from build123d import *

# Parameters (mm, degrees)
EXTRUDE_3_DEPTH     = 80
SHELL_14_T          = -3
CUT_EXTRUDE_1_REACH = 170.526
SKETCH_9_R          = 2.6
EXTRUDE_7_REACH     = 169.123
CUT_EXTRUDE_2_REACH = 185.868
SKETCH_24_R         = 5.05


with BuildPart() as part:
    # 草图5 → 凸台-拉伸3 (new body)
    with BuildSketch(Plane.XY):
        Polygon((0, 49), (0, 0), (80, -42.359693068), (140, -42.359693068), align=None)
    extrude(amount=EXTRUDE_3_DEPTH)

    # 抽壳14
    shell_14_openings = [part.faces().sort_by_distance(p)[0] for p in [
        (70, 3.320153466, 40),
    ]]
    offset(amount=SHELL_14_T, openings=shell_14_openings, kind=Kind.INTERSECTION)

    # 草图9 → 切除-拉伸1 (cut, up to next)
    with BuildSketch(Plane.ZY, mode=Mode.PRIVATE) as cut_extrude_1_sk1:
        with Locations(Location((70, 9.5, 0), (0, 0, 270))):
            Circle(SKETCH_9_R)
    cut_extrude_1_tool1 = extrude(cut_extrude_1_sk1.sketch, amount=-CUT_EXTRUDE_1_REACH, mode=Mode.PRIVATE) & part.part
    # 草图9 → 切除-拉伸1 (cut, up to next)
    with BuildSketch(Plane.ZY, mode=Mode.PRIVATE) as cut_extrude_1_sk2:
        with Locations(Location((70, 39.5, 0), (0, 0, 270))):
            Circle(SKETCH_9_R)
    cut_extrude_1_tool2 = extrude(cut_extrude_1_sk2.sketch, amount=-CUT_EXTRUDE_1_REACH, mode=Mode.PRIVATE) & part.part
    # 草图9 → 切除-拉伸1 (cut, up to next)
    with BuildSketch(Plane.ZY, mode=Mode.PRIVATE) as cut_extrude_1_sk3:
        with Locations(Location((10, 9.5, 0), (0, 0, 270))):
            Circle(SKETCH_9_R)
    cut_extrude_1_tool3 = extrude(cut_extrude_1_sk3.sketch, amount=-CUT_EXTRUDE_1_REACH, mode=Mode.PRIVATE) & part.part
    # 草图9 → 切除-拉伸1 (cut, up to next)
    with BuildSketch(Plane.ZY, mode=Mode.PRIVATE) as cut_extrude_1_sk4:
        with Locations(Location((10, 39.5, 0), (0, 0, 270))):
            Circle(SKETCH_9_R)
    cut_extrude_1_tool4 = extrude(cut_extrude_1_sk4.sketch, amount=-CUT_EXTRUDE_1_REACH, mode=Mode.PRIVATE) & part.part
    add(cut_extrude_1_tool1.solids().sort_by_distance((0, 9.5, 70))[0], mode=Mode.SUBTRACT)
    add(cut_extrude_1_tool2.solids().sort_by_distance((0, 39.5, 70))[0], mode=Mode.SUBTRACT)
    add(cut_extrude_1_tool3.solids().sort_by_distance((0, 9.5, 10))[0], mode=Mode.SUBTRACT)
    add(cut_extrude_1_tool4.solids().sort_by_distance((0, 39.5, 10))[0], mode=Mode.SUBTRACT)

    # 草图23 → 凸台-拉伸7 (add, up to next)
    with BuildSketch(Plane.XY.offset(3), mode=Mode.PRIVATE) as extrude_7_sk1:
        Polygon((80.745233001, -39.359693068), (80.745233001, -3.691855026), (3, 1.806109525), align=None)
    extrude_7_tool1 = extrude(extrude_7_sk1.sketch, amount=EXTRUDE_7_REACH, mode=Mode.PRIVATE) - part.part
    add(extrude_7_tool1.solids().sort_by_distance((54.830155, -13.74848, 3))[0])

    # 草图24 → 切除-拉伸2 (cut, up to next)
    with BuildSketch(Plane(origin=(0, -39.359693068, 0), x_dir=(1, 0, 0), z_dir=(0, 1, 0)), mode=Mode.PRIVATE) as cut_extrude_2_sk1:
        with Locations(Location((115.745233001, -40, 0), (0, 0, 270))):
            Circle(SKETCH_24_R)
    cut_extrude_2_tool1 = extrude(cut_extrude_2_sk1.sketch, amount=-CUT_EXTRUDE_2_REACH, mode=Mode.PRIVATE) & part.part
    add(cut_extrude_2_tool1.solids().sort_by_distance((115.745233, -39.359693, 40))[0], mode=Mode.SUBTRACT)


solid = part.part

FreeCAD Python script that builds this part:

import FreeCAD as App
import Part
import Sketcher
Q = App.Units.Quantity


def faces_at(feature, points):
    """Names of the faces that lie closest to the given points."""
    faces = feature.Shape.Faces
    near = lambda p: min(range(len(faces)), key=lambda i: faces[i].distToShape(Part.Vertex(*p))[0])
    return sorted({f"Face{near(p) + 1}" for p in points})

doc = App.newDocument("Part")
body = doc.addObject("PartDesign::Body", "Body")

# Sketch on XY plane
sketch1 = doc.addObject("Sketcher::SketchObject", "Sketch")
body.addObject(sketch1)
sketch1.AttachmentSupport = (doc.XY_Plane, [""])
sketch1.MapMode = "FlatFace"
sketch1.addGeometry([
    Part.LineSegment(App.Vector(0, 49, 0), App.Vector(0, 0, 0)),
    Part.LineSegment(App.Vector(0, 0, 0), App.Vector(80, -42.359693, 0)),
    Part.LineSegment(App.Vector(80, -42.359693, 0), App.Vector(140, -42.359693, 0)),
    Part.LineSegment(App.Vector(140, -42.359693, 0), App.Vector(0, 49, 0)),
], False)
sketch1.addConstraint([
    Sketcher.Constraint("Coincident", 0, 2, 1, 1),
    Sketcher.Constraint("Coincident", 1, 2, 2, 1),
    Sketcher.Constraint("Coincident", 2, 2, 3, 1),
    Sketcher.Constraint("Coincident", 3, 2, 0, 1),
    Sketcher.Constraint("Vertical", 0),
    Sketcher.Constraint("Horizontal", 2),
    Sketcher.Constraint("Coincident", 0, 2, -1, 1),
    Sketcher.Constraint("DistanceX", 2, 1, 2, 2, Q("60 mm")),
    Sketcher.Constraint("DistanceY", 0, 2, 0, 1, Q("49 mm")),
    Sketcher.Constraint("DistanceX", -1, 1, 1, 2, Q("80 mm")),
    Sketcher.Constraint("Distance", 1, Q("90.522614 mm")),
])
pad1 = doc.addObject("PartDesign::Pad", "Pad")
body.addObject(pad1)
pad1.Profile = sketch1
pad1.Length = 80
doc.recompute()

thickness = doc.addObject("PartDesign::Thickness", "Thickness")
body.addObject(thickness)
thickness.Base = (pad1, faces_at(pad1, [(70, 3.32, 40)]))
thickness.Value = 3
thickness.Reversed = True
thickness.Join = "Intersection"

# Sketch on YZ plane
sketch2 = doc.addObject("Sketcher::SketchObject", "Sketch001")
body.addObject(sketch2)
sketch2.AttachmentSupport = (doc.YZ_Plane, [""])
sketch2.MapMode = "FlatFace"
sketch2.addGeometry(Part.Circle(App.Vector(9.5, 70, 0), App.Vector(0, 0, 1), 2.6), False)
sketch2.addConstraint([
    Sketcher.Constraint("Diameter", 0, Q("5.2 mm")),
    Sketcher.Constraint("DistanceY", -1, 1, 0, 3, Q("70 mm")),
    Sketcher.Constraint("DistanceX", -1, 1, 0, 3, Q("9.5 mm")),
])
pocket1 = doc.addObject("PartDesign::Pocket", "Pocket")
body.addObject(pocket1)
pocket1.Profile = sketch2
pocket1.Type = "UpToFirst"
pocket1.Reversed = True

# Sketch on YZ plane
sketch3 = doc.addObject("Sketcher::SketchObject", "Sketch002")
body.addObject(sketch3)
sketch3.AttachmentSupport = (doc.YZ_Plane, [""])
sketch3.MapMode = "FlatFace"
sketch3.addGeometry(Part.Circle(App.Vector(39.5, 70, 0), App.Vector(0, 0, 1), 2.6), False)
sketch3.addConstraint([
    Sketcher.Constraint("Diameter", 0, Q("5.2 mm")),
    Sketcher.Constraint("DistanceY", -1, 1, 0, 3, Q("70 mm")),
    Sketcher.Constraint("DistanceX", -1, 1, 0, 3, Q("39.5 mm")),
])
pocket2 = doc.addObject("PartDesign::Pocket", "Pocket001")
body.addObject(pocket2)
pocket2.Profile = sketch3
pocket2.Type = "UpToFirst"
pocket2.Reversed = True

# Sketch on YZ plane
sketch4 = doc.addObject("Sketcher::SketchObject", "Sketch003")
body.addObject(sketch4)
sketch4.AttachmentSupport = (doc.YZ_Plane, [""])
sketch4.MapMode = "FlatFace"
sketch4.addGeometry(Part.Circle(App.Vector(9.5, 10, 0), App.Vector(0, 0, 1), 2.6), False)
sketch4.addConstraint([
    Sketcher.Constraint("Diameter", 0, Q("5.2 mm")),
    Sketcher.Constraint("DistanceY", -1, 1, 0, 3, Q("10 mm")),
    Sketcher.Constraint("DistanceX", -1, 1, 0, 3, Q("9.5 mm")),
])
pocket3 = doc.addObject("PartDesign::Pocket", "Pocket002")
body.addObject(pocket3)
pocket3.Profile = sketch4
pocket3.Type = "UpToFirst"
pocket3.Reversed = True

# Sketch on YZ plane
sketch5 = doc.addObject("Sketcher::SketchObject", "Sketch004")
body.addObject(sketch5)
sketch5.AttachmentSupport = (doc.YZ_Plane, [""])
sketch5.MapMode = "FlatFace"
sketch5.addGeometry(Part.Circle(App.Vector(39.5, 10, 0), App.Vector(0, 0, 1), 2.6), False)
sketch5.addConstraint([
    Sketcher.Constraint("Diameter", 0, Q("5.2 mm")),
    Sketcher.Constraint("DistanceY", -1, 1, 0, 3, Q("10 mm")),
    Sketcher.Constraint("DistanceX", -1, 1, 0, 3, Q("39.5 mm")),
])
pocket4 = doc.addObject("PartDesign::Pocket", "Pocket003")
body.addObject(pocket4)
pocket4.Profile = sketch5
pocket4.Type = "UpToFirst"
pocket4.Reversed = True

# Sketch on XY plane
sketch6 = doc.addObject("Sketcher::SketchObject", "Sketch005")
body.addObject(sketch6)
sketch6.AttachmentSupport = (doc.XY_Plane, [""])
sketch6.MapMode = "FlatFace"
sketch6.AttachmentOffset = App.Placement(App.Vector(0, 0, 3), App.Rotation())
sketch6.addGeometry([
    Part.LineSegment(App.Vector(80.745233, -39.359693, 0), App.Vector(80.745233, -3.691855, 0)),
    Part.LineSegment(App.Vector(80.745233, -3.691855, 0), App.Vector(3, 1.80611, 0)),
    Part.LineSegment(App.Vector(3, 1.80611, 0), App.Vector(80.745233, -39.359693, 0)),
], False)
sketch6.addConstraint([
    Sketcher.Constraint("Coincident", 0, 2, 1, 1),
    Sketcher.Constraint("Coincident", 1, 2, 2, 1),
    Sketcher.Constraint("Coincident", 2, 2, 0, 1),
    Sketcher.Constraint("Vertical", 0),
    Sketcher.Constraint("DistanceX", -1, 1, 1, 2, Q("3 mm")),
    Sketcher.Constraint("DistanceY", 0, 1, 0, 2, Q("35.667838 mm")),
    Sketcher.Constraint("Distance", 2, Q("87.971271 mm")),
    Sketcher.Constraint("DistanceY", -1, 1, 1, 2, Q("1.80611 mm")),
    Sketcher.Constraint("Distance", 1, Q("77.939392 mm")),
])
pad2 = doc.addObject("PartDesign::Pad", "Pad001")
body.addObject(pad2)
pad2.Profile = sketch6
pad2.Type = "UpToFirst"

# Sketch on XZ plane
sketch7 = doc.addObject("Sketcher::SketchObject", "Sketch006")
body.addObject(sketch7)
sketch7.AttachmentSupport = (doc.XZ_Plane, [""])
sketch7.MapMode = "FlatFace"
sketch7.AttachmentOffset = App.Placement(App.Vector(0, 0, 39.359693), App.Rotation())
sketch7.addGeometry(Part.Circle(App.Vector(115.745233, 40, 0), App.Vector(0, 0, 1), 5.05), False)
sketch7.addConstraint([
    Sketcher.Constraint("Diameter", 0, Q("10.1 mm")),
    Sketcher.Constraint("DistanceY", -1, 1, 0, 3, Q("40 mm")),
    Sketcher.Constraint("DistanceX", -1, 1, 0, 3, Q("115.745233 mm")),
])
pocket5 = doc.addObject("PartDesign::Pocket", "Pocket004")
body.addObject(pocket5)
pocket5.Profile = sketch7
pocket5.Type = "UpToFirst"
pocket5.Reversed = True

doc.recompute()
